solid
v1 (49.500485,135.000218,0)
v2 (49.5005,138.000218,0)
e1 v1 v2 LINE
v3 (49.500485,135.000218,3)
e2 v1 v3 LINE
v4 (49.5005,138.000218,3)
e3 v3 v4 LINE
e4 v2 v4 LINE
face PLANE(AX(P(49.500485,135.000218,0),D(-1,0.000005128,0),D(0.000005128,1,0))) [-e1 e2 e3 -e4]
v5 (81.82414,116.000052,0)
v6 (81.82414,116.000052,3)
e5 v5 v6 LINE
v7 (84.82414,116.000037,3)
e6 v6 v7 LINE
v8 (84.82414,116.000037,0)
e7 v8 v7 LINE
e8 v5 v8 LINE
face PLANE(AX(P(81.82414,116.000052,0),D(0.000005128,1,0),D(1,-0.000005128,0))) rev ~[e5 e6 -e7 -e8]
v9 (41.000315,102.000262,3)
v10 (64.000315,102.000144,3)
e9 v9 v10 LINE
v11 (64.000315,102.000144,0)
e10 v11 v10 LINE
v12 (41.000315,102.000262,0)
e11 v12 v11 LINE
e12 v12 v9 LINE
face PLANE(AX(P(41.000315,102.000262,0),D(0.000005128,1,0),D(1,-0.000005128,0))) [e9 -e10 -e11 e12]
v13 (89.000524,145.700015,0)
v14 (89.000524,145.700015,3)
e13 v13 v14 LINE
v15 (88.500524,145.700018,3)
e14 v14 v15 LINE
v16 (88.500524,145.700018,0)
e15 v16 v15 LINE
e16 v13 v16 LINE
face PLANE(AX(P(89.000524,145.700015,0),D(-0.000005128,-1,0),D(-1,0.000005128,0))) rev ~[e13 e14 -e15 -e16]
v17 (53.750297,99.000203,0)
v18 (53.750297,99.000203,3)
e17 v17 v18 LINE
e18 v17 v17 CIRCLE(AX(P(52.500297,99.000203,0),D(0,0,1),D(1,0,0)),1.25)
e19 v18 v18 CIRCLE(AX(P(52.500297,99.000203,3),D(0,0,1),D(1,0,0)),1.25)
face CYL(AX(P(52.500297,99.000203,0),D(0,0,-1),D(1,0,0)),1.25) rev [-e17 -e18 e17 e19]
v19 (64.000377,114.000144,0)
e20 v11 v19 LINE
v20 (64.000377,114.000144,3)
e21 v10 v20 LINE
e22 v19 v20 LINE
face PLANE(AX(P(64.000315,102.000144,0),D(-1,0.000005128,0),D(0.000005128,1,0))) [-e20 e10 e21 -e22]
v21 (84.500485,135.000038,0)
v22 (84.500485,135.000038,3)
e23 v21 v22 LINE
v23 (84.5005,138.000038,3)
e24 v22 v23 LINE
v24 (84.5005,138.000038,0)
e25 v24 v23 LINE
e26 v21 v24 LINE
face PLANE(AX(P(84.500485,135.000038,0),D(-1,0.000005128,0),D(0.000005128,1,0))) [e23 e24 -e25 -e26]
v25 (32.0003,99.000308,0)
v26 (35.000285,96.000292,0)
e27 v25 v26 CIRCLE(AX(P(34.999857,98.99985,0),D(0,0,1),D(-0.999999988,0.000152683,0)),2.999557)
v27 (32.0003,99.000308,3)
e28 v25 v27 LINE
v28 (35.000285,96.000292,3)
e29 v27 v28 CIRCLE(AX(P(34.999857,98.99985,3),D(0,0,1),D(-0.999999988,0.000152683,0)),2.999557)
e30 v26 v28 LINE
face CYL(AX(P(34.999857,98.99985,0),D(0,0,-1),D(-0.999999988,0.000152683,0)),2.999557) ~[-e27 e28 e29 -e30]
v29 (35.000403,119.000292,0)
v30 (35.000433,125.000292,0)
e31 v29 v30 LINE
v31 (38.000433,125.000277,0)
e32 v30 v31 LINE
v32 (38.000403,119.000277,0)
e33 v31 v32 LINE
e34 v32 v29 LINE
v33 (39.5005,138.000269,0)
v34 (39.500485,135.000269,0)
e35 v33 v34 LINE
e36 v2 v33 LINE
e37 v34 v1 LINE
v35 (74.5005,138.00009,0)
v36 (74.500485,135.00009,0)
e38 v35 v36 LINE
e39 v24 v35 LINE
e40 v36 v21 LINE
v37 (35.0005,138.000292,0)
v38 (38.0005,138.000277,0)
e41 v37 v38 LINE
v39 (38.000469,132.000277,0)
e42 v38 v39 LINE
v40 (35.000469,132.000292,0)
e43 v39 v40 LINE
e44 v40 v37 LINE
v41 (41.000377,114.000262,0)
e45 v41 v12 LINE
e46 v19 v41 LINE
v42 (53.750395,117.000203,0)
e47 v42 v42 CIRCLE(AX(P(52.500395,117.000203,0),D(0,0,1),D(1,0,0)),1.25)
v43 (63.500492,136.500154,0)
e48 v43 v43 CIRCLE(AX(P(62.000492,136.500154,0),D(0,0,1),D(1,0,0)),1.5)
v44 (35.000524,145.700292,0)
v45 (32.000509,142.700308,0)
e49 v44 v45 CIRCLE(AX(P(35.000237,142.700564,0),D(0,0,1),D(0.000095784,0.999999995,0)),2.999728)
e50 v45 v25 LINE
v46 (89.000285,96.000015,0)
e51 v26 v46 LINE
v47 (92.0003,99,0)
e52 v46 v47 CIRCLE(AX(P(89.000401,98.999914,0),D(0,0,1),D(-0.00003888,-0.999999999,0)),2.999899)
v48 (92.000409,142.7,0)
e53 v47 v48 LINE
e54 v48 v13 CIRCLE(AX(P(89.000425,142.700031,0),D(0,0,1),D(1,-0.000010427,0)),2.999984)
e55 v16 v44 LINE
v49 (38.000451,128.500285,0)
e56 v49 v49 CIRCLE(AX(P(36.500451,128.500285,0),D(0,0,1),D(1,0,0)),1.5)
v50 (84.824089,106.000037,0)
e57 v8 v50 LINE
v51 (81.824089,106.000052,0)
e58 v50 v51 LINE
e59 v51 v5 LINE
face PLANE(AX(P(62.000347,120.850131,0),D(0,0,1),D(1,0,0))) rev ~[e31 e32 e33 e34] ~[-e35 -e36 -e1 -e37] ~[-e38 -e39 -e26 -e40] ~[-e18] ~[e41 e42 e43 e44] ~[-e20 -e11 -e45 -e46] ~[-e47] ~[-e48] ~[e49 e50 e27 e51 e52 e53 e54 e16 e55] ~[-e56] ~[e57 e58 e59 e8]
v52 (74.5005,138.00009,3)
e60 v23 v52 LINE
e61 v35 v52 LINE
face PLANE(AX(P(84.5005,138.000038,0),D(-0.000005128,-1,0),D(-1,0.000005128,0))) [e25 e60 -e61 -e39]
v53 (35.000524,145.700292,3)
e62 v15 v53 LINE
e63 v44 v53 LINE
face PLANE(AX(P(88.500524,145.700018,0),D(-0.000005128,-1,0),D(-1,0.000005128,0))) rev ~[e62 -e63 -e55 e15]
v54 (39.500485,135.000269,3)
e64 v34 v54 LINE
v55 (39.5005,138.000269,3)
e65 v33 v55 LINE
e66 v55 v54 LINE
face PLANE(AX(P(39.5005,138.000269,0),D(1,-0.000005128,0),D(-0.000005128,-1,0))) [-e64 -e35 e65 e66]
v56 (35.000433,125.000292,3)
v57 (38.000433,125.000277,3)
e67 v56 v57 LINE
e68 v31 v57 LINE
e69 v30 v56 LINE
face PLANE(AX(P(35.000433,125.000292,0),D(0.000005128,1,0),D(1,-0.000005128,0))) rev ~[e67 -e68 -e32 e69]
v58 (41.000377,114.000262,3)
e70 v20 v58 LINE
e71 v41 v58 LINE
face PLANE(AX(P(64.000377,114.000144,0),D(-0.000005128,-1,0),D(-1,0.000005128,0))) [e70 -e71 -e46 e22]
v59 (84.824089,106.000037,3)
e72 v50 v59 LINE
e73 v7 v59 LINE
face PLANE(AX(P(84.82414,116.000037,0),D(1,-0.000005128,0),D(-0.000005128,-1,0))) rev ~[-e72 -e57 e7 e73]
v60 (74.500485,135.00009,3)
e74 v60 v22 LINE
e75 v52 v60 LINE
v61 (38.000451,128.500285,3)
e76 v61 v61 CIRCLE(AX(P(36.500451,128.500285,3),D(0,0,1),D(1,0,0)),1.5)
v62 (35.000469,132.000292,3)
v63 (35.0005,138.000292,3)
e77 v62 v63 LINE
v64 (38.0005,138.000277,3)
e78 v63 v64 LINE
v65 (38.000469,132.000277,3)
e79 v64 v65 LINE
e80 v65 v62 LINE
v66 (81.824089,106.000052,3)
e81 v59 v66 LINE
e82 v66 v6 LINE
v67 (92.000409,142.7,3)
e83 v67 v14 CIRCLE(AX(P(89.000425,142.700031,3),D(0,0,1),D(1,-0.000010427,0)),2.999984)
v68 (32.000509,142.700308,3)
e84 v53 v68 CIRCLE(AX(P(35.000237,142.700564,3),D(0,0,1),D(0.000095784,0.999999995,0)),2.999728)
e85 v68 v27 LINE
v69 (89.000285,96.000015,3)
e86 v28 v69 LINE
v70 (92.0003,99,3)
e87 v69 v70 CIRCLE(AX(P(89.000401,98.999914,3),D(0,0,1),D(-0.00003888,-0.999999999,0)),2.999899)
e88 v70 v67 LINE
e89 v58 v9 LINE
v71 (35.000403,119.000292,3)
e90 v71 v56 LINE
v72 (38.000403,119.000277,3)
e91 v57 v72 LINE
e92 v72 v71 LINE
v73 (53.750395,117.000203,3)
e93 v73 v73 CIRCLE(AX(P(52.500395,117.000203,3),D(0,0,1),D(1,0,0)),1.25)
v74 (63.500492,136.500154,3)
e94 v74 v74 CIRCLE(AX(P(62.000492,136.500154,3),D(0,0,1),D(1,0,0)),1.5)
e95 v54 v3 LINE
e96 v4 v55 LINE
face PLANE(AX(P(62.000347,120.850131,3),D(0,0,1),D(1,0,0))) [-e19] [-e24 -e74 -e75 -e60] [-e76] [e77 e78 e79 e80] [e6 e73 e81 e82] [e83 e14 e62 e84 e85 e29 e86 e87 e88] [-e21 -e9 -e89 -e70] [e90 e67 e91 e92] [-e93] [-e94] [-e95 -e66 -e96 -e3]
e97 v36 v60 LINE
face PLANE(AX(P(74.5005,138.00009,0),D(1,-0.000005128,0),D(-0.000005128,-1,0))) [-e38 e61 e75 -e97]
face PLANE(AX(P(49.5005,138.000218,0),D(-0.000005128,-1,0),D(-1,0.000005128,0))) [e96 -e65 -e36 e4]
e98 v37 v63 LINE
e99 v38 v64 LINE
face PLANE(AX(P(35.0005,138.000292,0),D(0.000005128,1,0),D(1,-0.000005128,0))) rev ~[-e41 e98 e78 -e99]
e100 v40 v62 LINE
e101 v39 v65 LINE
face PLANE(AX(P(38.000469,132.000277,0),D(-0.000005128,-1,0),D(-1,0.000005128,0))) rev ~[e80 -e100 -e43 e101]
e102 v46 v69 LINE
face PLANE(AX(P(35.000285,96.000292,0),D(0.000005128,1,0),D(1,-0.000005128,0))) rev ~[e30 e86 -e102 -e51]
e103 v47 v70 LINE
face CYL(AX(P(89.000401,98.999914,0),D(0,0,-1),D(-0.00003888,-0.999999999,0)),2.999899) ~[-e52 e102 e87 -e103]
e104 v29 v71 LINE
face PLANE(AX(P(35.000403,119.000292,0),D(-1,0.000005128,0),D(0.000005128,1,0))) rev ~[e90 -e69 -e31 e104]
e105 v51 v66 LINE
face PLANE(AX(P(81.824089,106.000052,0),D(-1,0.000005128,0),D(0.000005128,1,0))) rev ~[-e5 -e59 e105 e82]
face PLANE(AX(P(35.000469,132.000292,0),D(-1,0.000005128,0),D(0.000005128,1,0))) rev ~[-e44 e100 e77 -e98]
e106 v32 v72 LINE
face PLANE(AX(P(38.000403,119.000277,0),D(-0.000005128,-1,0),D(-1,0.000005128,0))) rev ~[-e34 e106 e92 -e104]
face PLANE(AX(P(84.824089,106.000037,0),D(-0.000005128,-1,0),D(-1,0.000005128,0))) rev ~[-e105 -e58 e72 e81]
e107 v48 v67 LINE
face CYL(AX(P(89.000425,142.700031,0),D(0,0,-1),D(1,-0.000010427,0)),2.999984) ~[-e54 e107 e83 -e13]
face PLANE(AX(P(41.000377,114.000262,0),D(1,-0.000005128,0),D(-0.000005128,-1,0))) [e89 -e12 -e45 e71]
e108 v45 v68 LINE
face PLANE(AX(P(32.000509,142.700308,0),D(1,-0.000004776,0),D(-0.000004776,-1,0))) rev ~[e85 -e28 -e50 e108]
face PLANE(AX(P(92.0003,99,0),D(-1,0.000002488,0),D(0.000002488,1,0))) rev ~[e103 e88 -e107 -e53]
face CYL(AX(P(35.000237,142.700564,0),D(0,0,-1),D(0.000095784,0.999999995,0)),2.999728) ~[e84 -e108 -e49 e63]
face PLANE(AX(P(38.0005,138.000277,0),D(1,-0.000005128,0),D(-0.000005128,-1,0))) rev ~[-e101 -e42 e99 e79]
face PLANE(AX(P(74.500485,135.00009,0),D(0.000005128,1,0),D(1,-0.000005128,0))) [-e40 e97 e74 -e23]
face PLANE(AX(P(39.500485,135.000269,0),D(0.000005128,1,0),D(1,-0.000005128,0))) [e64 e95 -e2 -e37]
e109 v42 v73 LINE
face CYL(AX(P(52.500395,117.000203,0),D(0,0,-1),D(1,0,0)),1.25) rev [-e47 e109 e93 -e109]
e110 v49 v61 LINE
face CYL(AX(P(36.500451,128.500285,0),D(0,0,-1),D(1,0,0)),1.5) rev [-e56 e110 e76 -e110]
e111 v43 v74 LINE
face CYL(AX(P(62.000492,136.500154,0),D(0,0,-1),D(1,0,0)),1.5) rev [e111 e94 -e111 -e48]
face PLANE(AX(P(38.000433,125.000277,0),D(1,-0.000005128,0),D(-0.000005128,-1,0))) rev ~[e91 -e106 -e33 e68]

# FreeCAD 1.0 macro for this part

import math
import FreeCAD as App
import Part
import Sketcher


def add_polygon(sketch, points):
    """Adds a closed chain of lines whose ends are joined by coincident constraints."""
    first, n = sketch.GeometryCount, len(points)
    for a, b in zip(points, points[1:] + points[:1]):
        sketch.addGeometry(Part.LineSegment(App.Vector(*a, 0), App.Vector(*b, 0)), False)
    for i in range(n):
        sketch.addConstraint(Sketcher.Constraint("Coincident", first + i, 2, first + (i + 1) % n, 1))

doc = App.newDocument("Part")
body = doc.addObject("PartDesign::Body", "Body")

# Sketch on XY plane
sketch1 = body.newObject("Sketcher::SketchObject", "Sketch")
sketch1.AttachmentSupport = (doc.getObject("XY_Plane"), [""])
sketch1.MapMode = "FlatFace"
sketch1.addGeometry(Part.LineSegment(App.Vector(88.5, 145.7, 0), App.Vector(35, 145.7, 0)), False)  # 0
sketch1.addGeometry(Part.ArcOfCircle(Part.Circle(App.Vector(35, 142.7, 0), App.Vector(0, 0, 1), 3), math.radians(90), math.radians(180)), False)  # 1
sketch1.addGeometry(Part.LineSegment(App.Vector(32, 142.7, 0), App.Vector(32, 99, 0)), False)  # 2
sketch1.addGeometry(Part.ArcOfCircle(Part.Circle(App.Vector(35, 99, 0), App.Vector(0, 0, 1), 3), math.radians(180), math.radians(270)), False)  # 3
sketch1.addGeometry(Part.LineSegment(App.Vector(35, 96, 0), App.Vector(89, 96, 0)), False)  # 4
sketch1.addGeometry(Part.ArcOfCircle(Part.Circle(App.Vector(89, 99, 0), App.Vector(0, 0, 1), 3), math.radians(-90), math.radians(0)), False)  # 5
sketch1.addGeometry(Part.LineSegment(App.Vector(92, 99, 0), App.Vector(92, 142.7, 0)), False)  # 6
sketch1.addGeometry(Part.ArcOfCircle(Part.Circle(App.Vector(89, 142.7, 0), App.Vector(0, 0, 1), 3), math.radians(0), math.radians(90)), False)  # 7
sketch1.addGeometry(Part.LineSegment(App.Vector(89, 145.7, 0), App.Vector(88.5, 145.7, 0)), False)  # 8
sketch1.addGeometry(Part.Circle(App.Vector(52.5, 99, 0), App.Vector(0, 0, 1), 1.2), False)  # 9
add_polygon(sketch1, [(64, 114), (64, 102), (41, 102), (41, 114)])  # lines 10-13
sketch1.addGeometry(Part.Circle(App.Vector(52.5, 117, 0), App.Vector(0, 0, 1), 1.2), False)  # 14
add_polygon(sketch1, [(81.8, 116), (84.8, 116), (84.8, 106), (81.8, 106)])  # lines 15-18
add_polygon(sketch1, [(38, 125), (38, 119), (35, 119), (35, 125)])  # lines 19-22
sketch1.addGeometry(Part.Circle(App.Vector(36.5, 128.5, 0), App.Vector(0, 0, 1), 1.5), False)  # 23
add_polygon(sketch1, [(38, 138), (38, 132), (35, 132), (35, 138)])  # lines 24-27
add_polygon(sketch1, [(39.5, 135), (39.5, 138), (49.5, 138), (49.5, 135)])  # lines 28-31
sketch1.addGeometry(Part.Circle(App.Vector(62, 136.5, 0), App.Vector(0, 0, 1), 1.5), False)  # 32
add_polygon(sketch1, [(84.5, 135), (74.5, 135), (74.5, 138), (84.5, 138)])  # lines 33-36
sketch1.addConstraint(Sketcher.Constraint("Coincident", 0, 2, 1, 1))
sketch1.addConstraint(Sketcher.Constraint("Coincident", 1, 2, 2, 1))
sketch1.addConstraint(Sketcher.Constraint("Coincident", 2, 2, 3, 1))
sketch1.addConstraint(Sketcher.Constraint("Coincident", 3, 2, 4, 1))
sketch1.addConstraint(Sketcher.Constraint("Coincident", 4, 2, 5, 1))
sketch1.addConstraint(Sketcher.Constraint("Coincident", 5, 2, 6, 1))
sketch1.addConstraint(Sketcher.Constraint("Coincident", 6, 2, 7, 1))
sketch1.addConstraint(Sketcher.Constraint("Coincident", 7, 2, 8, 1))
sketch1.addConstraint(Sketcher.Constraint("Coincident", 8, 2, 0, 1))
sketch1.addConstraint(Sketcher.Constraint("Equal", 9, 14))
sketch1.addConstraint(Sketcher.Constraint("Equal", 23, 32))
sketch1.addConstraint(Sketcher.Constraint("Perpendicular", 0, 2))
sketch1.addConstraint(Sketcher.Constraint("Perpendicular", 2, 4))
sketch1.addConstraint(Sketcher.Constraint("Parallel", 4, 8))
sketch1.addConstraint(Sketcher.Constraint("Perpendicular", 8, 10))
sketch1.addConstraint(Sketcher.Constraint("Perpendicular", 10, 11))
sketch1.addConstraint(Sketcher.Constraint("Perpendicular", 11, 12))
sketch1.addConstraint(Sketcher.Constraint("Perpendicular", 12, 13))
sketch1.addConstraint(Sketcher.Constraint("Parallel", 13, 15))
sketch1.addConstraint(Sketcher.Constraint("Perpendicular", 15, 16))
sketch1.addConstraint(Sketcher.Constraint("Perpendicular", 16, 17))
sketch1.addConstraint(Sketcher.Constraint("Perpendicular", 17, 18))
sketch1.addConstraint(Sketcher.Constraint("Parallel", 18, 19))
sketch1.addConstraint(Sketcher.Constraint("Perpendicular", 19, 20))
sketch1.addConstraint(Sketcher.Constraint("Perpendicular", 20, 21))
sketch1.addConstraint(Sketcher.Constraint("Perpendicular", 21, 22))
sketch1.addConstraint(Sketcher.Constraint("Perpendicular", 22, 24))
sketch1.addConstraint(Sketcher.Constraint("Perpendicular", 24, 25))
sketch1.addConstraint(Sketcher.Constraint("Perpendicular", 25, 26))
sketch1.addConstraint(Sketcher.Constraint("Perpendicular", 26, 27))
sketch1.addConstraint(Sketcher.Constraint("Perpendicular", 27, 28))
sketch1.addConstraint(Sketcher.Constraint("Perpendicular", 28, 29))
sketch1.addConstraint(Sketcher.Constraint("Perpendicular", 29, 30))
sketch1.addConstraint(Sketcher.Constraint("Perpendicular", 30, 31))
sketch1.addConstraint(Sketcher.Constraint("Parallel", 31, 33))
sketch1.addConstraint(Sketcher.Constraint("Perpendicular", 33, 34))
sketch1.addConstraint(Sketcher.Constraint("Perpendicular", 34, 35))
sketch1.addConstraint(Sketcher.Constraint("Perpendicular", 35, 36))
sketch1.addConstraint(Sketcher.Constraint("Equal", 2, 6))
sketch1.addConstraint(Sketcher.Constraint("Equal", 17, 20))
sketch1.addConstraint(Sketcher.Constraint("Equal", 21, 24))
sketch1.addConstraint(Sketcher.Constraint("Equal", 22, 25))
sketch1.addConstraint(Sketcher.Constraint("Equal", 27, 28))
sketch1.addConstraint(Sketcher.Constraint("Equal", 18, 29))
sketch1.addConstraint(Sketcher.Constraint("Equal", 31, 33))
sketch1.addConstraint(Sketcher.Constraint("Equal", 30, 34))
sketch1.addConstraint(Sketcher.Constraint("Diameter", 23, 3.0))
sketch1.addConstraint(Sketcher.Constraint("Diameter", 9, 2.5))
sketch1.addConstraint(Sketcher.Constraint("Distance", 4, 54.0))
sketch1.addConstraint(Sketcher.Constraint("Distance", 10, 12.0))
sketch1.addConstraint(Sketcher.Constraint("Distance", 11, 23.0))
sketch1.addConstraint(Sketcher.Constraint("Distance", 15, 3.0))
sketch1.addConstraint(Sketcher.Constraint("Distance", 16, 10.0))
sketch1.addConstraint(Sketcher.Constraint("Distance", 19, 6.0))
sketch1.addConstraint(Sketcher.Constraint("DistanceY", -1, 1, 5, 2, 99.0))
sketch1.addConstraint(Sketcher.Constraint("DistanceY", 9, 3, 14, 3, 18.0))
sketch1.addConstraint(Sketcher.Constraint("DistanceY", 22, 2, 24, 2, 7.0))
sketch1.addConstraint(Sketcher.Constraint("Distance", 0, 53.5))
sketch1.addConstraint(Sketcher.Constraint("Distance", 2, 43.7))
sketch1.addConstraint(Sketcher.Constraint("Distance", 8, 0.5))
sketch1.addConstraint(Sketcher.Constraint("Radius", 5, 2.999899))
sketch1.addConstraint(Sketcher.Constraint("DistanceY", 26, 2, 0, 2, 7.7))
sketch1.addConstraint(Sketcher.Constraint("DistanceX", 27, 2, 28, 2, 1.5))
sketch1.addConstraint(Sketcher.Constraint("Radius", 1, 2.999728))
sketch1.addConstraint(Sketcher.Constraint("Radius", 3, 2.999557))
sketch1.addConstraint(Sketcher.Constraint("Radius", 7, 2.999984))
sketch1.addConstraint(Sketcher.Constraint("DistanceX", -1, 1, 5, 3, 89.000401))
sketch1.addConstraint(Sketcher.Constraint("DistanceX", -1, 1, 2, 2, 32.0003))
sketch1.addConstraint(Sketcher.Constraint("DistanceX", -1, 1, 26, 2, 35.0005))
sketch1.addConstraint(Sketcher.Constraint("DistanceX", -1, 1, 34, 2, 74.5005))
sketch1.addConstraint(Sketcher.Constraint("DistanceY", 5, 3, 7, 2, 46.700101))
sketch1.addConstraint(Sketcher.Constraint("DistanceX", 8, 2, 7, 3, 0.499901))
sketch1.addConstraint(Sketcher.Constraint("DistanceY", -1, 1, 3, 3, 98.99985))
sketch1.addConstraint(Sketcher.Constraint("DistanceY", -1, 1, 7, 3, 142.700031))
sketch1.addConstraint(Sketcher.Constraint("DistanceX", -1, 1, 23, 3, 36.500451))
sketch1.addConstraint(Sketcher.Constraint("DistanceX", -1, 1, 6, 2, 92.000409))
sketch1.addConstraint(Sketcher.Constraint("DistanceY", -1, 1, 11, 2, 102.000262))
sketch1.addConstraint(Sketcher.Constraint("DistanceX", -1, 1, 15, 2, 84.82414))
sketch1.addConstraint(Sketcher.Constraint("DistanceY", -1, 1, 28, 2, 138.000269))
sketch1.addConstraint(Sketcher.Constraint("DistanceY", -1, 1, 33, 2, 135.00009))
sketch1.addConstraint(Sketcher.Constraint("DistanceX", 3, 3, 9, 3, 17.50044))
sketch1.addConstraint(Sketcher.Constraint("DistanceY", 5, 3, 9, 3, 0.000288))
sketch1.addConstraint(Sketcher.Constraint("DistanceX", 1, 3, 14, 3, 17.500158))
sketch1.addConstraint(Sketcher.Constraint("DistanceY", 23, 3, 1, 3, 14.20028))
sketch1.addConstraint(Sketcher.Constraint("DistanceY", 14, 3, 32, 3, 19.499951))
sketch1.addConstraint(Sketcher.Constraint("DistanceX", 23, 3, 32, 3, 25.500041))
sketch1.addConstraint(Sketcher.Constraint("DistanceX", 3, 2, 14, 3, 17.50011))
sketch1.addConstraint(Sketcher.Constraint("DistanceX", 14, 3, 10, 2, 11.499921))
sketch1.addConstraint(Sketcher.Constraint("DistanceY", 4, 2, 15, 2, 20.000021))
sketch1.addConstraint(Sketcher.Constraint("DistanceX", 23, 3, 19, 2, 1.499951))
sketch1.addConstraint(Sketcher.Constraint("DistanceY", 24, 2, 1, 2, 10.700031))
pad1 = body.newObject("PartDesign::Pad", "Pad")
pad1.Profile = sketch1
pad1.Length = 3

doc.recompute()
